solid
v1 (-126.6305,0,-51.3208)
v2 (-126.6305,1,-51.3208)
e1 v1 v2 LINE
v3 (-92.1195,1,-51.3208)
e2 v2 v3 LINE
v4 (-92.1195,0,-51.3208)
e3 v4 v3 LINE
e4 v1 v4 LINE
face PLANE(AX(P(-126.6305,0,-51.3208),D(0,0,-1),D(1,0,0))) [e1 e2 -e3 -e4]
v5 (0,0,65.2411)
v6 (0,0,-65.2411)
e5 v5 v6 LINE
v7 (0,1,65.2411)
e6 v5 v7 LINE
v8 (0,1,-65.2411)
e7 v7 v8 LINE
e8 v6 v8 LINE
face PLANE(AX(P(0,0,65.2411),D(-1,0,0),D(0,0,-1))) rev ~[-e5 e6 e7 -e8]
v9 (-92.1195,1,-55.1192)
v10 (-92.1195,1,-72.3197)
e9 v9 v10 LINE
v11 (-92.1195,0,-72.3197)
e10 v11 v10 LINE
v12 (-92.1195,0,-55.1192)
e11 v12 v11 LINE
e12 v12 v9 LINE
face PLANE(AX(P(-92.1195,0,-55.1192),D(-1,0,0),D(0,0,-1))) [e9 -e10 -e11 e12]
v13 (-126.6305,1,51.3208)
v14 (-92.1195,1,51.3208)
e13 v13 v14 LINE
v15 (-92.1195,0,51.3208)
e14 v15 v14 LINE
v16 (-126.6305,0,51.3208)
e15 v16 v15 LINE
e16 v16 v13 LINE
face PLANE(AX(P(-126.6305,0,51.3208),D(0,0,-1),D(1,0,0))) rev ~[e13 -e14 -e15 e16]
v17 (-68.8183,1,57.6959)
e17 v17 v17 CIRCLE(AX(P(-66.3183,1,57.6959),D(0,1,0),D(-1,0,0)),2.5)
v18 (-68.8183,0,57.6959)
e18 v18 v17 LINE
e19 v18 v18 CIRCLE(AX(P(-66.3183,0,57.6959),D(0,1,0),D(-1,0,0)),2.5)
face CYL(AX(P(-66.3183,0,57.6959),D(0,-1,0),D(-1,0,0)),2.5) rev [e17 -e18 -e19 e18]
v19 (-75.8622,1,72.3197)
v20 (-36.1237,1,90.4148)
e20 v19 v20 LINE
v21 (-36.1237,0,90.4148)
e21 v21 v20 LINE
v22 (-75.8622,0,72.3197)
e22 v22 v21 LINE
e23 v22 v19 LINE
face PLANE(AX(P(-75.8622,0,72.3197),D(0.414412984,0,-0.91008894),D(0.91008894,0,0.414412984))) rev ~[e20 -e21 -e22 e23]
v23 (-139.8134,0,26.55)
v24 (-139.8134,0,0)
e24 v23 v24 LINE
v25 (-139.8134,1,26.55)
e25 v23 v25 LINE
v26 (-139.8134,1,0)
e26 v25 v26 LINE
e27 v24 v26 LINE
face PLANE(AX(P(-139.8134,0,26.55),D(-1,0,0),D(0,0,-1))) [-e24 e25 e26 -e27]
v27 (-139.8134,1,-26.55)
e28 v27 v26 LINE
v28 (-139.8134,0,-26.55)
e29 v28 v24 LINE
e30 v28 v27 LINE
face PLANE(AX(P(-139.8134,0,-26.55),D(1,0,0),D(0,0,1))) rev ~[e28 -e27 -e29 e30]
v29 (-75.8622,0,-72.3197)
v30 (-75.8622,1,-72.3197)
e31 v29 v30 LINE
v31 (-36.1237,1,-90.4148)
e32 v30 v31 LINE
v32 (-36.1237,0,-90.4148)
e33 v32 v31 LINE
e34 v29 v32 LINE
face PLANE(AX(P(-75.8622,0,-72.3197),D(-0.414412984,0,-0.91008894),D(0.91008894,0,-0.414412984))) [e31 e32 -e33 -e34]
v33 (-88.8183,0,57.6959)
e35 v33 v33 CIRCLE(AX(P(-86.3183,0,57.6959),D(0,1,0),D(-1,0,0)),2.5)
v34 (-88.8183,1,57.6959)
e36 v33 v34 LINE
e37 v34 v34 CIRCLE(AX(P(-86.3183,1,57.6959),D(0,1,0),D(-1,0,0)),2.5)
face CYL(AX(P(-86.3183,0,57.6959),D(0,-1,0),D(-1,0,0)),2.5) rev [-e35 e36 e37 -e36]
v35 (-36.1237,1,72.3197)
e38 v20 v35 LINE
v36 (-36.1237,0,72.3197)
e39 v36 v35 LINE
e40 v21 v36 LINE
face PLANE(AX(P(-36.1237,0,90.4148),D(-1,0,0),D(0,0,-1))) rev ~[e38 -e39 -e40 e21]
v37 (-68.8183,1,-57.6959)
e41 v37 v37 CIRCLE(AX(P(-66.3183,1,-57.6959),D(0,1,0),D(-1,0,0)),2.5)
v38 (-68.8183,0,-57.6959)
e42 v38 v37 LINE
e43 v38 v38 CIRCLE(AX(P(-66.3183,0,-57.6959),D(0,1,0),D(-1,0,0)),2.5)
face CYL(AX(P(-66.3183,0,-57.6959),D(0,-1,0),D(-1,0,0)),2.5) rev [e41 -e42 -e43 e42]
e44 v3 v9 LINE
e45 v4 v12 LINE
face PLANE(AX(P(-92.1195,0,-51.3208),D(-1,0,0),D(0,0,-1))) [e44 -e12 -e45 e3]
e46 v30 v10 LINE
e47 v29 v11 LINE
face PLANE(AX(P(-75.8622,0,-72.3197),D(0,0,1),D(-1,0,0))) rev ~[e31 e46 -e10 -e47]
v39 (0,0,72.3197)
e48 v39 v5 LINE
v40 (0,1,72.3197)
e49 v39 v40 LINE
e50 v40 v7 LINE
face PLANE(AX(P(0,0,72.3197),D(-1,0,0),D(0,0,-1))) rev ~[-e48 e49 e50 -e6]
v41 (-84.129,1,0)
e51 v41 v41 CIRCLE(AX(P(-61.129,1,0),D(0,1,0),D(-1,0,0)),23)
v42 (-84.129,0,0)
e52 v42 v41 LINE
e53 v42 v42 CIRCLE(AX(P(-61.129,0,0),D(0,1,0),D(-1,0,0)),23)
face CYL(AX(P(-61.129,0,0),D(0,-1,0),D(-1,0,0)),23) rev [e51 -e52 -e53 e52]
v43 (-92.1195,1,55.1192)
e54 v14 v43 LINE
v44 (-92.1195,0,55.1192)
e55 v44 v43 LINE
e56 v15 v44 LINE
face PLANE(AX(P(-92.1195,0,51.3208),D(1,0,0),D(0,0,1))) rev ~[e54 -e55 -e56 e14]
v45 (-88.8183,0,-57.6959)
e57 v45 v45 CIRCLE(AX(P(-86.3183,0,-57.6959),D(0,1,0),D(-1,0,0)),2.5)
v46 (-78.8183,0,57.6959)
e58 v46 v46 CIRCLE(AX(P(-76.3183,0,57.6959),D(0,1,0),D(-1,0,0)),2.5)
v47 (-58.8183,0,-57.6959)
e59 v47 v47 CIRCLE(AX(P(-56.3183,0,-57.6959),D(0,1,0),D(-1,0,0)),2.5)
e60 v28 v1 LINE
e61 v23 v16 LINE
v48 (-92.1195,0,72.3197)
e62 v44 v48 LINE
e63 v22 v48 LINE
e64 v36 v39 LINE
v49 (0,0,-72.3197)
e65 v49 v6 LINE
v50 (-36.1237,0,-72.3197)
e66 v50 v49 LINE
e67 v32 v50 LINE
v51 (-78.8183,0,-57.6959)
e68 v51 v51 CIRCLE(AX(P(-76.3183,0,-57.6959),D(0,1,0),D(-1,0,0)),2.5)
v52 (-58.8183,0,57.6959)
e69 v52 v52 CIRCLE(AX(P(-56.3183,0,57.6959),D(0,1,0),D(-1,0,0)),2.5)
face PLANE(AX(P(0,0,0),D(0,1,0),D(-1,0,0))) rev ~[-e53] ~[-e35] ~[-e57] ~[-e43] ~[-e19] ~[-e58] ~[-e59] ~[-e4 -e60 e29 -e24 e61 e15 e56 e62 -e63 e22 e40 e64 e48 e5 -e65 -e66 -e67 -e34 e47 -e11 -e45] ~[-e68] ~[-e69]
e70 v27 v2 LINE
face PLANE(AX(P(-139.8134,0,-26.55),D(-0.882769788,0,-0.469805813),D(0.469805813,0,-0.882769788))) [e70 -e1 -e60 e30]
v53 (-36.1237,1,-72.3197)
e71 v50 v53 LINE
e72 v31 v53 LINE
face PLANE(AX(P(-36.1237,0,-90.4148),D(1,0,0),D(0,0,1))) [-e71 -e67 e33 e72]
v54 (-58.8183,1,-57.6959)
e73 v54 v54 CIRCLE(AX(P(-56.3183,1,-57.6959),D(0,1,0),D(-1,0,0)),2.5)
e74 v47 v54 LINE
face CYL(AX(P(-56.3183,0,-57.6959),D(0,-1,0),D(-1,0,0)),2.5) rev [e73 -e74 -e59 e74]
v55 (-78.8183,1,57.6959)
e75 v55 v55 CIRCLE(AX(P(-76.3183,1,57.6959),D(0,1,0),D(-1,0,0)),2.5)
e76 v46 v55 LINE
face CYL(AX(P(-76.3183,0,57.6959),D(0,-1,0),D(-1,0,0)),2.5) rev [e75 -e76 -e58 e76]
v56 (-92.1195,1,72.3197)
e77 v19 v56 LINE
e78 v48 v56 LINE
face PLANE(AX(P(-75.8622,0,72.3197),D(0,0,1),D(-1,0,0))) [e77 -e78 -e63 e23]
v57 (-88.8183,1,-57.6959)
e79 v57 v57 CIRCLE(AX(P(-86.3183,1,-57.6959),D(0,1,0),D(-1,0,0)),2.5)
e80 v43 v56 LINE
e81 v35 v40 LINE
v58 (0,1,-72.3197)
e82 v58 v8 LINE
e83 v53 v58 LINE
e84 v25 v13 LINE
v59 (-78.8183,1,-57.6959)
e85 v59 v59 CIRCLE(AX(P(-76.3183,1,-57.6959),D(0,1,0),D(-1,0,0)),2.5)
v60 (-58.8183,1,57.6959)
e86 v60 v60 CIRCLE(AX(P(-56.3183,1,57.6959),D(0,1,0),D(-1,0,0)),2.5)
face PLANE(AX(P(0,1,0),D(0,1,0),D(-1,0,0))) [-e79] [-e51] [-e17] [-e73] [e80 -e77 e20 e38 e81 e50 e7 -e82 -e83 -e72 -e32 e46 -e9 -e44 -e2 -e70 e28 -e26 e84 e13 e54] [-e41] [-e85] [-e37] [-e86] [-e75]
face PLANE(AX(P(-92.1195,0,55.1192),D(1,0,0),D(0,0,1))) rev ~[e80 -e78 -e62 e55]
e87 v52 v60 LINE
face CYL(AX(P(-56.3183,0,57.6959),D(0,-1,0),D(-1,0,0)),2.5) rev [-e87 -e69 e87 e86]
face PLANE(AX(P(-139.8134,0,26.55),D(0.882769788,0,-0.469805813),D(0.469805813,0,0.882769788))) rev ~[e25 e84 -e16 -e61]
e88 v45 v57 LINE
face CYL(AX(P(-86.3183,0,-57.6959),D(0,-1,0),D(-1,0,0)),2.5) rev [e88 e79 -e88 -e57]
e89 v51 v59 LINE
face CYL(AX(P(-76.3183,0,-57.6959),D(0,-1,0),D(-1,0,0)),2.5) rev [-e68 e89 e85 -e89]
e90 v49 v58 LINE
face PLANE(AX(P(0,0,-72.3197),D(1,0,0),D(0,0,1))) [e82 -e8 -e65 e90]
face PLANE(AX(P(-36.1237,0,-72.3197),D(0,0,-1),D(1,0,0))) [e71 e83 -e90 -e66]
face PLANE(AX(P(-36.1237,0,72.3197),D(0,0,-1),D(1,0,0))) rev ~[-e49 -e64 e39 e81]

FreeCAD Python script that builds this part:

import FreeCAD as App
import Part
import Sketcher
Q = App.Units.Quantity

doc = App.newDocument("Part")
params = doc.addObject("Spreadsheet::Sheet", "Params")
for row, (alias, value) in enumerate([
    ("sketch1_diameter", "46 mm"),
    ("sketch1_diameter2", "5 mm"),
    ("sketch1_height", "53.1 mm"),
    ("pad1_length", "1 mm"),
], start=1):
    params.set(f"A{row}", alias)
    params.set(f"B{row}", "=" + value)
    params.setAlias(f"B{row}", alias)

body = doc.addObject("PartDesign::Body", "Body")

# Sketch on XZ plane
sketch1 = doc.addObject("Sketcher::SketchObject", "Sketch")
body.addObject(sketch1)
sketch1.AttachmentSupport = (doc.XZ_Plane, [""])
sketch1.MapMode = "FlatFace"
sketch1.addGeometry([
    Part.LineSegment(App.Vector(-126.6305, -51.3208, 0), App.Vector(-139.8134, -26.55, 0)),  # 0
    Part.LineSegment(App.Vector(-139.8134, -26.55, 0), App.Vector(-139.8134, 26.55, 0)),  # 1
    Part.LineSegment(App.Vector(-139.8134, 26.55, 0), App.Vector(-126.6305, 51.3208, 0)),  # 2
    Part.LineSegment(App.Vector(-126.6305, 51.3208, 0), App.Vector(-92.1195, 51.3208, 0)),  # 3
    Part.LineSegment(App.Vector(-92.1195, 51.3208, 0), App.Vector(-92.1195, 72.3197, 0)),  # 4
    Part.LineSegment(App.Vector(-92.1195, 72.3197, 0), App.Vector(-75.8622, 72.3197, 0)),  # 5
    Part.LineSegment(App.Vector(-75.8622, 72.3197, 0), App.Vector(-36.1237, 90.4148, 0)),  # 6
    Part.LineSegment(App.Vector(-36.1237, 90.4148, 0), App.Vector(-36.1237, 72.3197, 0)),  # 7
    Part.LineSegment(App.Vector(-36.1237, 72.3197, 0), App.Vector(0, 72.3197, 0)),  # 8
    Part.LineSegment(App.Vector(0, 72.3197, 0), App.Vector(0, -72.3197, 0)),  # 9
    Part.LineSegment(App.Vector(0, -72.3197, 0), App.Vector(-36.1237, -72.3197, 0)),  # 10
    Part.LineSegment(App.Vector(-36.1237, -72.3197, 0), App.Vector(-36.1237, -90.4148, 0)),  # 11
    Part.LineSegment(App.Vector(-36.1237, -90.4148, 0), App.Vector(-75.8622, -72.3197, 0)),  # 12
    Part.LineSegment(App.Vector(-75.8622, -72.3197, 0), App.Vector(-92.1195, -72.3197, 0)),  # 13
    Part.LineSegment(App.Vector(-92.1195, -72.3197, 0), App.Vector(-92.1195, -51.3208, 0)),  # 14
    Part.LineSegment(App.Vector(-92.1195, -51.3208, 0), App.Vector(-126.6305, -51.3208, 0)),  # 15
    Part.Circle(App.Vector(-56.3183, -57.6959, 0), App.Vector(0, 0, 1), 2.5),  # 16
    Part.Circle(App.Vector(-66.3183, -57.6959, 0), App.Vector(0, 0, 1), 2.5),  # 17
    Part.Circle(App.Vector(-76.3183, -57.6959, 0), App.Vector(0, 0, 1), 2.5),  # 18
    Part.Circle(App.Vector(-86.3183, -57.6959, 0), App.Vector(0, 0, 1), 2.5),  # 19
    Part.Circle(App.Vector(-61.129, 0, 0), App.Vector(0, 0, 1), 23),  # 20
    Part.Circle(App.Vector(-56.3183, 57.6959, 0), App.Vector(0, 0, 1), 2.5),  # 21
    Part.Circle(App.Vector(-66.3183, 57.6959, 0), App.Vector(0, 0, 1), 2.5),  # 22
    Part.Circle(App.Vector(-76.3183, 57.6959, 0), App.Vector(0, 0, 1), 2.5),  # 23
    Part.Circle(App.Vector(-86.3183, 57.6959, 0), App.Vector(0, 0, 1), 2.5),  # 24
], False)
sketch1.addConstraint([
    Sketcher.Constraint("Coincident", 0, 2, 1, 1),
    Sketcher.Constraint("Coincident", 1, 2, 2, 1),
    Sketcher.Constraint("Coincident", 2, 2, 3, 1),
    Sketcher.Constraint("Coincident", 3, 2, 4, 1),
    Sketcher.Constraint("Coincident", 4, 2, 5, 1),
    Sketcher.Constraint("Coincident", 5, 2, 6, 1),
    Sketcher.Constraint("Coincident", 6, 2, 7, 1),
    Sketcher.Constraint("Coincident", 7, 2, 8, 1),
    Sketcher.Constraint("Coincident", 8, 2, 9, 1),
    Sketcher.Constraint("Coincident", 9, 2, 10, 1),
    Sketcher.Constraint("Coincident", 10, 2, 11, 1),
    Sketcher.Constraint("Coincident", 11, 2, 12, 1),
    Sketcher.Constraint("Coincident", 12, 2, 13, 1),
    Sketcher.Constraint("Coincident", 13, 2, 14, 1),
    Sketcher.Constraint("Coincident", 14, 2, 15, 1),
    Sketcher.Constraint("Coincident", 15, 2, 0, 1),
    Sketcher.Constraint("Vertical", 1),
    Sketcher.Constraint("Horizontal", 3),
    Sketcher.Constraint("Vertical", 4),
    Sketcher.Constraint("Horizontal", 5),
    Sketcher.Constraint("Vertical", 7),
    Sketcher.Constraint("Horizontal", 8),
    Sketcher.Constraint("Vertical", 9),
    Sketcher.Constraint("Horizontal", 10),
    Sketcher.Constraint("Vertical", 11),
    Sketcher.Constraint("Horizontal", 13),
    Sketcher.Constraint("Vertical", 14),
    Sketcher.Constraint("Horizontal", 15),
    Sketcher.Constraint("Equal", 16, 17),
    Sketcher.Constraint("Equal", 17, 18),
    Sketcher.Constraint("Equal", 18, 19),
    Sketcher.Constraint("Equal", 19, 21),
    Sketcher.Constraint("Equal", 21, 22),
    Sketcher.Constraint("Equal", 22, 23),
    Sketcher.Constraint("Equal", 23, 24),
    Sketcher.Constraint("Symmetric", 8, 2, 9, 2, -1, 1),
    Sketcher.Constraint("Symmetric", 16, 3, 21, 3, -1),
    Sketcher.Constraint("Symmetric", 17, 3, 22, 3, -1),
    Sketcher.Constraint("Symmetric", 18, 3, 23, 3, -1),
    Sketcher.Constraint("Symmetric", 19, 3, 24, 3, -1),
    Sketcher.Constraint("Symmetric", 6, 2, 11, 2, -1),
    Sketcher.Constraint("Symmetric", 5, 2, 12, 2, -1),
    Sketcher.Constraint("Symmetric", 3, 2, 14, 2, -1),
    Sketcher.Constraint("PointOnObject", 20, 3, -1),
    Sketcher.Constraint("Horizontal", 16, 3, 17, 3),
    Sketcher.Constraint("Horizontal", 17, 3, 18, 3),
    Sketcher.Constraint("Horizontal", 18, 3, 19, 3),
    Sketcher.Constraint("Horizontal", 5, 2, 7, 2),
    Sketcher.Constraint("Vertical", 2, 2, 15, 2),
    Sketcher.Constraint("Equal", 0, 2),
    Sketcher.Constraint("Diameter", 20, Q("46 mm")),
    Sketcher.Constraint("Diameter", 16, Q("5 mm")),
    Sketcher.Constraint("DistanceY", 1, 1, 1, 2, Q("53.1 mm")),
    Sketcher.Constraint("DistanceX", 17, 3, 16, 3, Q("10 mm")),
    Sketcher.Constraint("DistanceX", 18, 3, 17, 3, Q("10 mm")),
    Sketcher.Constraint("DistanceX", 19, 3, 18, 3, Q("10 mm")),
    Sketcher.Constraint("DistanceX", 3, 1, 3, 2, Q("34.511 mm")),
    Sketcher.Constraint("DistanceY", 4, 1, 4, 2, Q("20.999 mm")),
    Sketcher.Constraint("DistanceY", 7, 2, 7, 1, Q("18.095 mm")),
    Sketcher.Constraint("DistanceX", 5, 1, 5, 2, Q("16.2573 mm")),
    Sketcher.Constraint("DistanceX", 8, 1, 8, 2, Q("36.1237 mm")),
    Sketcher.Constraint("DistanceY", 9, 2, 9, 1, Q("144.6394 mm")),
    Sketcher.Constraint("DistanceY", 16, 3, -1, 1, Q("57.696 mm")),
    Sketcher.Constraint("DistanceX", 20, 3, -1, 1, Q("61.129 mm")),
    Sketcher.Constraint("DistanceX", 0, 2, 19, 3, Q("53.495 mm")),
    Sketcher.Constraint("DistanceX", 1, 2, 2, 2, Q("13.183 mm")),
    Sketcher.Constraint("Distance", 6, Q("43.6644 mm")),
])
sketch1.setExpression("Constraints[50]", "Params.sketch1_diameter")
sketch1.setExpression("Constraints[51]", "Params.sketch1_diameter2")
sketch1.setExpression("Constraints[52]", "Params.sketch1_height")
pad1 = doc.addObject("PartDesign::Pad", "Pad")
body.addObject(pad1)
pad1.Profile = sketch1
pad1.setExpression("Length", "Params.pad1_length")
pad1.Reversed = True

doc.recompute()
